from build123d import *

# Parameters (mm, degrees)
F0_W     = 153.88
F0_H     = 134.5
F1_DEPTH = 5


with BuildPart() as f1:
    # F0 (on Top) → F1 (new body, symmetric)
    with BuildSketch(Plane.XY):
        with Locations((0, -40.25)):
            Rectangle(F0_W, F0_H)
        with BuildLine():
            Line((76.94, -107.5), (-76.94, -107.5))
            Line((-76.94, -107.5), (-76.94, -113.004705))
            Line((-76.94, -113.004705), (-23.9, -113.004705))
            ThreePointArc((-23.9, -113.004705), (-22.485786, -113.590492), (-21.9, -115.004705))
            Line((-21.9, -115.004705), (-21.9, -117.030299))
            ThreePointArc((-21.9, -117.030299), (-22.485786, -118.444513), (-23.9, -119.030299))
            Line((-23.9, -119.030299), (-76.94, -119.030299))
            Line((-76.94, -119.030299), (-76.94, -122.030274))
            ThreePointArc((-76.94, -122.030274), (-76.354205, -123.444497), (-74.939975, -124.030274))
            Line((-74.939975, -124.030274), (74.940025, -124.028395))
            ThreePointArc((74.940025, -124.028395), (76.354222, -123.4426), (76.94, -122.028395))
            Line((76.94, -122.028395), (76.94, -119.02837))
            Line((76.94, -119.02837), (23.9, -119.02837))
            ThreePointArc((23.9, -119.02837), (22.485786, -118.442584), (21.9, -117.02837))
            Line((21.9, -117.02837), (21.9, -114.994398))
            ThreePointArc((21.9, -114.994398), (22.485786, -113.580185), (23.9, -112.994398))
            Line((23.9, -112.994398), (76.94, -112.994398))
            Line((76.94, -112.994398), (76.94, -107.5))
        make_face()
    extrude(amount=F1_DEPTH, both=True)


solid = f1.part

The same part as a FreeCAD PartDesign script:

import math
import FreeCAD as App
import Part
import Sketcher
from FreeCAD import Vector
Q = App.Units.Quantity

doc = App.newDocument("Part")
body = doc.addObject("PartDesign::Body", "Body")

# Sketch on XY plane
sketch1 = body.newObject("Sketcher::SketchObject", "Sketch")
sketch1.AttachmentSupport = (doc.getObject("XY_Plane"), [""])
sketch1.MapMode = "FlatFace"
sketch1.addGeometry([
    Part.LineSegment(Vector(-76.94, 27, 0), Vector(-76.94, -113.004705, 0)),  # 0
    Part.LineSegment(Vector(-76.94, -113.004705, 0), Vector(-23.9, -113.004705, 0)),  # 1
    Part.ArcOfCircle(Part.Circle(Vector(-23.9, -115.004705, 0), Vector(0, 0, 1), 2), math.radians(0.000006), math.radians(89.999994)),  # 2
    Part.LineSegment(Vector(-21.9, -115.004705, 0), Vector(-21.9, -117.030299, 0)),  # 3
    Part.ArcOfCircle(Part.Circle(Vector(-23.899999, -117.0303, 0), Vector(0, 0, 1), 1.999999), math.radians(-90.000043), math.radians(0.000043)),  # 4
    Part.LineSegment(Vector(-23.9, -119.030299, 0), Vector(-76.94, -119.030299, 0)),  # 5
    Part.LineSegment(Vector(-76.94, -119.030299, 0), Vector(-76.94, -122.030274, 0)),  # 6
    Part.ArcOfCircle(Part.Circle(Vector(-74.940001, -122.030275, 0), Vector(0, 0, 1), 1.999999), math.radians(179.999957), math.radians(270.000759)),  # 7
    Part.LineSegment(Vector(-74.939975, -124.030274, 0), Vector(74.940025, -124.028395, 0)),  # 8
    Part.ArcOfCircle(Part.Circle(Vector(74.94, -122.028395, 0), Vector(0, 0, 1), 2), math.radians(-89.999278), math.radians(-0.000006)),  # 9
    Part.LineSegment(Vector(76.94, -122.028395, 0), Vector(76.94, -119.02837, 0)),  # 10
    Part.LineSegment(Vector(76.94, -119.02837, 0), Vector(23.9, -119.02837, 0)),  # 11
    Part.ArcOfCircle(Part.Circle(Vector(23.899999, -117.028371, 0), Vector(0, 0, 1), 1.999999), math.radians(179.999957), math.radians(270.000043)),  # 12
    Part.LineSegment(Vector(21.9, -117.02837, 0), Vector(21.9, -114.994398, 0)),  # 13
    Part.ArcOfCircle(Part.Circle(Vector(23.9, -114.994398, 0), Vector(0, 0, 1), 2), math.radians(90.000006), math.radians(179.999994)),  # 14
    Part.LineSegment(Vector(23.9, -112.994398, 0), Vector(76.94, -112.994398, 0)),  # 15
    Part.LineSegment(Vector(76.94, -112.994398, 0), Vector(76.94, 27, 0)),  # 16
    Part.LineSegment(Vector(76.94, 27, 0), Vector(-76.94, 27, 0)),  # 17
], False)
sketch1.addConstraint([
    Sketcher.Constraint("Coincident", 0, 2, 1, 1),
    Sketcher.Constraint("Tangent", 1, 2, 2, 2),
    Sketcher.Constraint("Tangent", 2, 1, 3, 1),
    Sketcher.Constraint("Tangent", 3, 2, 4, 2),
    Sketcher.Constraint("Tangent", 4, 1, 5, 1),
    Sketcher.Constraint("Coincident", 5, 2, 6, 1),
    Sketcher.Constraint("Tangent", 6, 2, 7, 1),
    Sketcher.Constraint("Tangent", 7, 2, 8, 1),
    Sketcher.Constraint("Tangent", 8, 2, 9, 1),
    Sketcher.Constraint("Tangent", 9, 2, 10, 1),
    Sketcher.Constraint("Coincident", 10, 2, 11, 1),
    Sketcher.Constraint("Tangent", 11, 2, 12, 2),
    Sketcher.Constraint("Tangent", 12, 1, 13, 1),
    Sketcher.Constraint("Tangent", 13, 2, 14, 2),
    Sketcher.Constraint("Tangent", 14, 1, 15, 1),
    Sketcher.Constraint("Coincident", 15, 2, 16, 1),
    Sketcher.Constraint("Coincident", 16, 2, 17, 1),
    Sketcher.Constraint("Coincident", 17, 2, 0, 1),
    Sketcher.Constraint("Vertical", 0),
    Sketcher.Constraint("Horizontal", 1),
    Sketcher.Constraint("Vertical", 3),
    Sketcher.Constraint("Horizontal", 5),
    Sketcher.Constraint("Vertical", 6),
    Sketcher.Constraint("Vertical", 10),
    Sketcher.Constraint("Horizontal", 11),
    Sketcher.Constraint("Vertical", 13),
    Sketcher.Constraint("Horizontal", 15),
    Sketcher.Constraint("Vertical", 16),
    Sketcher.Constraint("Horizontal", 17),
    Sketcher.Constraint("Equal", 2, 4),
    Sketcher.Constraint("Equal", 4, 7),
    Sketcher.Constraint("Equal", 7, 9),
    Sketcher.Constraint("Equal", 9, 12),
    Sketcher.Constraint("Equal", 12, 14),
    Sketcher.Constraint("Vertical", 0, 2, 5, 2),
    Sketcher.Constraint("Vertical", 10, 2, 15, 2),
    Sketcher.Constraint("Equal", 5, 11),
    Sketcher.Constraint("Radius", 2, Q("2 mm")),
    Sketcher.Constraint("DistanceY", -1, 1, 16, 2, Q("27 mm")),
    Sketcher.Constraint("DistanceX", 1, 1, 1, 2, Q("53.04 mm")),
    Sketcher.Constraint("DistanceX", 17, 2, 17, 1, Q("153.88 mm")),
    Sketcher.Constraint("DistanceX", 2, 3, -1, 1, Q("23.9 mm")),
    Sketcher.Constraint("DistanceY", 13, 1, 13, 2, Q("2.033972 mm")),
    Sketcher.Constraint("DistanceY", 4, 3, -1, 1, Q("117.0303 mm")),
    Sketcher.Constraint("DistanceY", 14, 3, -1, 1, Q("114.994398 mm")),
    Sketcher.Constraint("DistanceY", 0, 2, 0, 1, Q("140.004705 mm")),
    Sketcher.Constraint("DistanceY", 6, 2, 6, 1, Q("2.999975 mm")),
    Sketcher.Constraint("DistanceY", 10, 1, 10, 2, Q("3.000025 mm")),
])
pad1 = body.newObject("PartDesign::Pad", "Pad")
pad1.Profile = sketch1
pad1.Length = 10
pad1.Midplane = True

doc.recompute()
